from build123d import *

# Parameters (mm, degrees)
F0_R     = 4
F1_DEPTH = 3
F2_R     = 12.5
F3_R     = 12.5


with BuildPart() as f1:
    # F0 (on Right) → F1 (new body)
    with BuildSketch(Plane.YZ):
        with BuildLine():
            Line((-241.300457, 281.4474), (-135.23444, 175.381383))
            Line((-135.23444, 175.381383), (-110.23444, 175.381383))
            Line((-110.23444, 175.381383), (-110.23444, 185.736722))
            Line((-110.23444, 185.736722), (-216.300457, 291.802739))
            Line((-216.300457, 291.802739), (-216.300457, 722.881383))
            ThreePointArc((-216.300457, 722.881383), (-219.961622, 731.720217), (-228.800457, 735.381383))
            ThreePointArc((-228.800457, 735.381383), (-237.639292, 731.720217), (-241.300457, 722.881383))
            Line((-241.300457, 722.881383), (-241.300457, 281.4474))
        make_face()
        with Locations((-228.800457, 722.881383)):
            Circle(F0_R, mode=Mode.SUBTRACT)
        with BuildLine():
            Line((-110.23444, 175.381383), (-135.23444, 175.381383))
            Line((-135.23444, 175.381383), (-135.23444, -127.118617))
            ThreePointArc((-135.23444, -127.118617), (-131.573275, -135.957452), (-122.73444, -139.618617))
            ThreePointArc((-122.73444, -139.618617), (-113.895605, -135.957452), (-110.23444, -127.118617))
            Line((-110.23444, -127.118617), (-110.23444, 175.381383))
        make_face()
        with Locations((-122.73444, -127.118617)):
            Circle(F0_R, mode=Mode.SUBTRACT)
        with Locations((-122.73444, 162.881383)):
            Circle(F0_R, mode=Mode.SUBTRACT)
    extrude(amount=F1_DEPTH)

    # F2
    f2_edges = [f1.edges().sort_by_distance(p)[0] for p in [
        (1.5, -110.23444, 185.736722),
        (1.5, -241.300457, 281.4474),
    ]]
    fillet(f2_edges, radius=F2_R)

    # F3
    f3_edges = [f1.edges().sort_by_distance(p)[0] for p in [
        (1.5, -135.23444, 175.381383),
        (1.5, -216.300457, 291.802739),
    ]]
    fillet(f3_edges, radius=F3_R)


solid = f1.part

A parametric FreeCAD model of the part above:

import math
import FreeCAD as App
import Part
import Sketcher

V = App.Vector
Q = App.Units.Quantity


def edges_at(feature, points):
    """Names of the edges that pass closest to the given points."""
    edges = feature.Shape.Edges
    near = lambda p: min(range(len(edges)), key=lambda i: edges[i].distToShape(Part.Vertex(*p))[0])
    return sorted({f"Edge{near(p) + 1}" for p in points})

doc = App.newDocument("Part")
body = doc.addObject("PartDesign::Body", "Body")

sketch1 = doc.addObject("Sketcher::SketchObject", "Sketch")
body.addObject(sketch1)
sketch1.AttachmentSupport = (doc.YZ_Plane, [""])
sketch1.MapMode = "FlatFace"
sketch1.addGeometry([
    Part.LineSegment(V(-241.3, 281.4, 0), V(-135.2, 175.4, 0)),
    Part.LineSegment(V(-135.2, 175.4, 0), V(-135.2, -127.1, 0)),
    Part.ArcOfCircle(Part.Circle(V(-122.7, -127.1, 0), V(0, 0, 1), 12.5), math.radians(180), math.radians(270)),
    Part.ArcOfCircle(Part.Circle(V(-122.7, -127.1, 0), V(0, 0, 1), 12.5), math.radians(-90), math.radians(0)),
    Part.LineSegment(V(-110.2, -127.1, 0), V(-110.2, 185.7, 0)),
    Part.LineSegment(V(-110.2, 185.7, 0), V(-216.3, 291.8, 0)),
    Part.LineSegment(V(-216.3, 291.8, 0), V(-216.3, 722.9, 0)),
    Part.ArcOfCircle(Part.Circle(V(-228.8, 722.9, 0), V(0, 0, 1), 12.5), math.radians(0), math.radians(90)),
    Part.ArcOfCircle(Part.Circle(V(-228.8, 722.9, 0), V(0, 0, 1), 12.5), math.radians(90), math.radians(180)),
    Part.LineSegment(V(-241.3, 722.9, 0), V(-241.3, 281.4, 0)),
    Part.Circle(V(-122.7, -127.1, 0), V(0, 0, 1), 4),
    Part.Circle(V(-122.7, 162.9, 0), V(0, 0, 1), 4),
    Part.Circle(V(-228.8, 722.9, 0), V(0, 0, 1), 4),
], False)
sketch1.addConstraint([
    Sketcher.Constraint("Coincident", 0, 2, 1, 1),
    Sketcher.Constraint("Tangent", 1, 2, 2, 1),
    Sketcher.Constraint("Tangent", 2, 2, 3, 1),
    Sketcher.Constraint("Tangent", 3, 2, 4, 1),
    Sketcher.Constraint("Coincident", 4, 2, 5, 1),
    Sketcher.Constraint("Coincident", 5, 2, 6, 1),
    Sketcher.Constraint("Tangent", 6, 2, 7, 1),
    Sketcher.Constraint("Tangent", 7, 2, 8, 1),
    Sketcher.Constraint("Tangent", 8, 2, 9, 1),
    Sketcher.Constraint("Coincident", 9, 2, 0, 1),
    Sketcher.Constraint("Vertical", 1),
    Sketcher.Constraint("Vertical", 4),
    Sketcher.Constraint("Vertical", 6),
    Sketcher.Constraint("Vertical", 9),
    Sketcher.Constraint("Coincident", 10, 3, 2, 3),
    Sketcher.Constraint("Coincident", 12, 3, 7, 3),
    Sketcher.Constraint("Equal", 2, 3),
    Sketcher.Constraint("Equal", 3, 7),
    Sketcher.Constraint("Equal", 7, 8),
    Sketcher.Constraint("Equal", 10, 11),
    Sketcher.Constraint("Equal", 11, 12),
    Sketcher.Constraint("Parallel", 0, 5),
    Sketcher.Constraint("Vertical", 10, 3, 11, 3),
    Sketcher.Constraint("Vertical", 11, 3, 2, 2),
    Sketcher.Constraint("Vertical", 12, 3, 7, 2),
    Sketcher.Constraint("Diameter", 10, 8.0),
    Sketcher.Constraint("Radius", 2, 12.499999),
    Sketcher.Constraint("Angle", 0, Q("-45 deg")),
    Sketcher.Constraint("Distance", 0, 150.0),
    Sketcher.Constraint("DistanceY", 1, 2, 1, 1, 302.5),
    Sketcher.Constraint("DistanceY", 2, 3, 7, 3, 850.0),
    Sketcher.Constraint("DistanceY", 10, 3, 11, 3, 290.0),
    Sketcher.Constraint("DistanceY", 4, 1, 4, 2, 312.855339),
    Sketcher.Constraint("DistanceY", -1, 1, 9, 2, 281.4474),
    Sketcher.Constraint("DistanceX", 2, 3, -1, 1, 122.734441),
])
pad1 = doc.addObject("PartDesign::Pad", "Pad")
body.addObject(pad1)
pad1.Profile = sketch1
pad1.Length = 3
doc.recompute()

fillet = doc.addObject("PartDesign::Fillet", "Fillet")
body.addObject(fillet)
fillet.Base = (pad1, edges_at(pad1, [(1.5, -110.234, 185.737), (1.5, -241.3, 281.447)]))
fillet.Radius = 12.5
doc.recompute()

fillet2 = doc.addObject("PartDesign::Fillet", "Fillet001")
body.addObject(fillet2)
fillet2.Base = (fillet, edges_at(fillet, [(1.5, -135.234, 175.381), (1.5, -216.3, 291.803)]))
fillet2.Radius = 12.5

doc.recompute()
